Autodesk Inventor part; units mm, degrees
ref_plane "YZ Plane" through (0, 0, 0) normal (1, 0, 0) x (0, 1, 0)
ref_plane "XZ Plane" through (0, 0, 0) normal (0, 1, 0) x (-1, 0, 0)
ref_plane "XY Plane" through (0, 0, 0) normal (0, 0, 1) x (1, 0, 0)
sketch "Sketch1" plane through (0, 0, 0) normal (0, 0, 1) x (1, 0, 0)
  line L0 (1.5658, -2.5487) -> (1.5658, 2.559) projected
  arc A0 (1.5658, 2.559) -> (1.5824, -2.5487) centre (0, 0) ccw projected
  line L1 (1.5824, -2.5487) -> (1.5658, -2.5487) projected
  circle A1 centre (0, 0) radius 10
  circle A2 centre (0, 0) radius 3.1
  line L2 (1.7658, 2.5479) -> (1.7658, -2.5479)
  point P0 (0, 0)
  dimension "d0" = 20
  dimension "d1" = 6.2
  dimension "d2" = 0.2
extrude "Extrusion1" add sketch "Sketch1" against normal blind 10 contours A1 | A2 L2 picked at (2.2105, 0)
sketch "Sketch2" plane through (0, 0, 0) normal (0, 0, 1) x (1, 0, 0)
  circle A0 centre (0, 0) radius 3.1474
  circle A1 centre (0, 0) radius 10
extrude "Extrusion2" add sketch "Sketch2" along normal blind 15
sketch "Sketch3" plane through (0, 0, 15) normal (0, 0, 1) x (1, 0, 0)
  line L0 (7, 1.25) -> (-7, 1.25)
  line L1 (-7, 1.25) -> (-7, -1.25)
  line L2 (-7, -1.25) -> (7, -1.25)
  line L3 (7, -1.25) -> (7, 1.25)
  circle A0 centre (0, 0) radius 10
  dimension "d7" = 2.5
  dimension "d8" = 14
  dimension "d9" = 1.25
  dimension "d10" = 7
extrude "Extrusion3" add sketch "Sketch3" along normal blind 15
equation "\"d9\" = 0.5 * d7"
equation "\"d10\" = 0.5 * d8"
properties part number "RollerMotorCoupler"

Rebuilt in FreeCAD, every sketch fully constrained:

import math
import FreeCAD as App
import Part
import Sketcher
from FreeCAD import Vector

doc = App.newDocument("Part")
body = doc.addObject("PartDesign::Body", "Body")

sketch1 = body.newObject("Sketcher::SketchObject", "Sketch")
sketch1.AttachmentSupport = (doc.getObject("XY_Plane"), [""])
sketch1.MapMode = "FlatFace"
sketch1.addGeometry([
    Part.Circle(Vector(0, 0, 0), Vector(0, 0, 1), 10),
    Part.ArcOfCircle(Part.Circle(Vector(0, 0, 0), Vector(0, 0, 1), 3.1), math.radians(55), math.radians(305)),
    Part.LineSegment(Vector(1.8, -2.5, 0), Vector(1.8, 2.5, 0)),
], False)
sketch1.addConstraint([
    Sketcher.Constraint("Coincident", 1, 1, 2, 2),
    Sketcher.Constraint("Coincident", 2, 1, 1, 2),
    Sketcher.Constraint("Vertical", 2),
    Sketcher.Constraint("Coincident", 0, 3, -1, 1),
    Sketcher.Constraint("Coincident", 1, 3, -1, 1),
    Sketcher.Constraint("Diameter", 0, 20.0),
    Sketcher.Constraint("Radius", 1, 3.1),
    Sketcher.Constraint("DistanceY", 2, 1, 2, 2, 5.0958),
])
pad1 = body.newObject("PartDesign::Pad", "Pad")
pad1.Profile = sketch1
pad1.Length = 10
pad1.Reversed = True

sketch2 = body.newObject("Sketcher::SketchObject", "Sketch001")
sketch2.AttachmentSupport = (doc.getObject("XY_Plane"), [""])
sketch2.MapMode = "FlatFace"
sketch2.addGeometry([
    Part.Circle(Vector(0, 0, 0), Vector(0, 0, 1), 10),
    Part.Circle(Vector(0, 0, 0), Vector(0, 0, 1), 3.1),
], False)
sketch2.addConstraint([
    Sketcher.Constraint("Coincident", 0, 3, -1, 1),
    Sketcher.Constraint("Coincident", 1, 3, -1, 1),
    Sketcher.Constraint("Diameter", 0, 20.0),
    Sketcher.Constraint("Diameter", 1, 6.2948),
])
pad2 = body.newObject("PartDesign::Pad", "Pad001")
pad2.Profile = sketch2
pad2.Length = 15

sketch3 = body.newObject("Sketcher::SketchObject", "Sketch002")
sketch3.AttachmentSupport = (doc.getObject("XY_Plane"), [""])
sketch3.MapMode = "FlatFace"
sketch3.AttachmentOffset = App.Placement(Vector(0, 0, 15), App.Rotation())
sketch3.addGeometry([
    Part.Circle(Vector(0, 0, 0), Vector(0, 0, 1), 10),
    Part.LineSegment(Vector(-7, 1.2, 0), Vector(7, 1.2, 0)),
    Part.LineSegment(Vector(7, 1.2, 0), Vector(7, -1.2, 0)),
    Part.LineSegment(Vector(7, -1.2, 0), Vector(-7, -1.2, 0)),
    Part.LineSegment(Vector(-7, -1.2, 0), Vector(-7, 1.2, 0)),
], False)
sketch3.addConstraint([
    Sketcher.Constraint("Coincident", 1, 2, 2, 1),
    Sketcher.Constraint("Coincident", 2, 2, 3, 1),
    Sketcher.Constraint("Coincident", 3, 2, 4, 1),
    Sketcher.Constraint("Coincident", 4, 2, 1, 1),
    Sketcher.Constraint("Horizontal", 1),
    Sketcher.Constraint("Vertical", 2),
    Sketcher.Constraint("Horizontal", 3),
    Sketcher.Constraint("Vertical", 4),
    Sketcher.Constraint("Coincident", 0, 3, -1, 1),
    Sketcher.Constraint("Symmetric", 1, 2, 3, 2, -1, 1),
    Sketcher.Constraint("DistanceX", 1, 1, 1, 2, 14.0),
    Sketcher.Constraint("Diameter", 0, 20.0),
    Sketcher.Constraint("DistanceY", 2, 2, 2, 1, 2.5),
])
pad3 = body.newObject("PartDesign::Pad", "Pad002")
pad3.Profile = sketch3
pad3.Length = 15

doc.recompute()
